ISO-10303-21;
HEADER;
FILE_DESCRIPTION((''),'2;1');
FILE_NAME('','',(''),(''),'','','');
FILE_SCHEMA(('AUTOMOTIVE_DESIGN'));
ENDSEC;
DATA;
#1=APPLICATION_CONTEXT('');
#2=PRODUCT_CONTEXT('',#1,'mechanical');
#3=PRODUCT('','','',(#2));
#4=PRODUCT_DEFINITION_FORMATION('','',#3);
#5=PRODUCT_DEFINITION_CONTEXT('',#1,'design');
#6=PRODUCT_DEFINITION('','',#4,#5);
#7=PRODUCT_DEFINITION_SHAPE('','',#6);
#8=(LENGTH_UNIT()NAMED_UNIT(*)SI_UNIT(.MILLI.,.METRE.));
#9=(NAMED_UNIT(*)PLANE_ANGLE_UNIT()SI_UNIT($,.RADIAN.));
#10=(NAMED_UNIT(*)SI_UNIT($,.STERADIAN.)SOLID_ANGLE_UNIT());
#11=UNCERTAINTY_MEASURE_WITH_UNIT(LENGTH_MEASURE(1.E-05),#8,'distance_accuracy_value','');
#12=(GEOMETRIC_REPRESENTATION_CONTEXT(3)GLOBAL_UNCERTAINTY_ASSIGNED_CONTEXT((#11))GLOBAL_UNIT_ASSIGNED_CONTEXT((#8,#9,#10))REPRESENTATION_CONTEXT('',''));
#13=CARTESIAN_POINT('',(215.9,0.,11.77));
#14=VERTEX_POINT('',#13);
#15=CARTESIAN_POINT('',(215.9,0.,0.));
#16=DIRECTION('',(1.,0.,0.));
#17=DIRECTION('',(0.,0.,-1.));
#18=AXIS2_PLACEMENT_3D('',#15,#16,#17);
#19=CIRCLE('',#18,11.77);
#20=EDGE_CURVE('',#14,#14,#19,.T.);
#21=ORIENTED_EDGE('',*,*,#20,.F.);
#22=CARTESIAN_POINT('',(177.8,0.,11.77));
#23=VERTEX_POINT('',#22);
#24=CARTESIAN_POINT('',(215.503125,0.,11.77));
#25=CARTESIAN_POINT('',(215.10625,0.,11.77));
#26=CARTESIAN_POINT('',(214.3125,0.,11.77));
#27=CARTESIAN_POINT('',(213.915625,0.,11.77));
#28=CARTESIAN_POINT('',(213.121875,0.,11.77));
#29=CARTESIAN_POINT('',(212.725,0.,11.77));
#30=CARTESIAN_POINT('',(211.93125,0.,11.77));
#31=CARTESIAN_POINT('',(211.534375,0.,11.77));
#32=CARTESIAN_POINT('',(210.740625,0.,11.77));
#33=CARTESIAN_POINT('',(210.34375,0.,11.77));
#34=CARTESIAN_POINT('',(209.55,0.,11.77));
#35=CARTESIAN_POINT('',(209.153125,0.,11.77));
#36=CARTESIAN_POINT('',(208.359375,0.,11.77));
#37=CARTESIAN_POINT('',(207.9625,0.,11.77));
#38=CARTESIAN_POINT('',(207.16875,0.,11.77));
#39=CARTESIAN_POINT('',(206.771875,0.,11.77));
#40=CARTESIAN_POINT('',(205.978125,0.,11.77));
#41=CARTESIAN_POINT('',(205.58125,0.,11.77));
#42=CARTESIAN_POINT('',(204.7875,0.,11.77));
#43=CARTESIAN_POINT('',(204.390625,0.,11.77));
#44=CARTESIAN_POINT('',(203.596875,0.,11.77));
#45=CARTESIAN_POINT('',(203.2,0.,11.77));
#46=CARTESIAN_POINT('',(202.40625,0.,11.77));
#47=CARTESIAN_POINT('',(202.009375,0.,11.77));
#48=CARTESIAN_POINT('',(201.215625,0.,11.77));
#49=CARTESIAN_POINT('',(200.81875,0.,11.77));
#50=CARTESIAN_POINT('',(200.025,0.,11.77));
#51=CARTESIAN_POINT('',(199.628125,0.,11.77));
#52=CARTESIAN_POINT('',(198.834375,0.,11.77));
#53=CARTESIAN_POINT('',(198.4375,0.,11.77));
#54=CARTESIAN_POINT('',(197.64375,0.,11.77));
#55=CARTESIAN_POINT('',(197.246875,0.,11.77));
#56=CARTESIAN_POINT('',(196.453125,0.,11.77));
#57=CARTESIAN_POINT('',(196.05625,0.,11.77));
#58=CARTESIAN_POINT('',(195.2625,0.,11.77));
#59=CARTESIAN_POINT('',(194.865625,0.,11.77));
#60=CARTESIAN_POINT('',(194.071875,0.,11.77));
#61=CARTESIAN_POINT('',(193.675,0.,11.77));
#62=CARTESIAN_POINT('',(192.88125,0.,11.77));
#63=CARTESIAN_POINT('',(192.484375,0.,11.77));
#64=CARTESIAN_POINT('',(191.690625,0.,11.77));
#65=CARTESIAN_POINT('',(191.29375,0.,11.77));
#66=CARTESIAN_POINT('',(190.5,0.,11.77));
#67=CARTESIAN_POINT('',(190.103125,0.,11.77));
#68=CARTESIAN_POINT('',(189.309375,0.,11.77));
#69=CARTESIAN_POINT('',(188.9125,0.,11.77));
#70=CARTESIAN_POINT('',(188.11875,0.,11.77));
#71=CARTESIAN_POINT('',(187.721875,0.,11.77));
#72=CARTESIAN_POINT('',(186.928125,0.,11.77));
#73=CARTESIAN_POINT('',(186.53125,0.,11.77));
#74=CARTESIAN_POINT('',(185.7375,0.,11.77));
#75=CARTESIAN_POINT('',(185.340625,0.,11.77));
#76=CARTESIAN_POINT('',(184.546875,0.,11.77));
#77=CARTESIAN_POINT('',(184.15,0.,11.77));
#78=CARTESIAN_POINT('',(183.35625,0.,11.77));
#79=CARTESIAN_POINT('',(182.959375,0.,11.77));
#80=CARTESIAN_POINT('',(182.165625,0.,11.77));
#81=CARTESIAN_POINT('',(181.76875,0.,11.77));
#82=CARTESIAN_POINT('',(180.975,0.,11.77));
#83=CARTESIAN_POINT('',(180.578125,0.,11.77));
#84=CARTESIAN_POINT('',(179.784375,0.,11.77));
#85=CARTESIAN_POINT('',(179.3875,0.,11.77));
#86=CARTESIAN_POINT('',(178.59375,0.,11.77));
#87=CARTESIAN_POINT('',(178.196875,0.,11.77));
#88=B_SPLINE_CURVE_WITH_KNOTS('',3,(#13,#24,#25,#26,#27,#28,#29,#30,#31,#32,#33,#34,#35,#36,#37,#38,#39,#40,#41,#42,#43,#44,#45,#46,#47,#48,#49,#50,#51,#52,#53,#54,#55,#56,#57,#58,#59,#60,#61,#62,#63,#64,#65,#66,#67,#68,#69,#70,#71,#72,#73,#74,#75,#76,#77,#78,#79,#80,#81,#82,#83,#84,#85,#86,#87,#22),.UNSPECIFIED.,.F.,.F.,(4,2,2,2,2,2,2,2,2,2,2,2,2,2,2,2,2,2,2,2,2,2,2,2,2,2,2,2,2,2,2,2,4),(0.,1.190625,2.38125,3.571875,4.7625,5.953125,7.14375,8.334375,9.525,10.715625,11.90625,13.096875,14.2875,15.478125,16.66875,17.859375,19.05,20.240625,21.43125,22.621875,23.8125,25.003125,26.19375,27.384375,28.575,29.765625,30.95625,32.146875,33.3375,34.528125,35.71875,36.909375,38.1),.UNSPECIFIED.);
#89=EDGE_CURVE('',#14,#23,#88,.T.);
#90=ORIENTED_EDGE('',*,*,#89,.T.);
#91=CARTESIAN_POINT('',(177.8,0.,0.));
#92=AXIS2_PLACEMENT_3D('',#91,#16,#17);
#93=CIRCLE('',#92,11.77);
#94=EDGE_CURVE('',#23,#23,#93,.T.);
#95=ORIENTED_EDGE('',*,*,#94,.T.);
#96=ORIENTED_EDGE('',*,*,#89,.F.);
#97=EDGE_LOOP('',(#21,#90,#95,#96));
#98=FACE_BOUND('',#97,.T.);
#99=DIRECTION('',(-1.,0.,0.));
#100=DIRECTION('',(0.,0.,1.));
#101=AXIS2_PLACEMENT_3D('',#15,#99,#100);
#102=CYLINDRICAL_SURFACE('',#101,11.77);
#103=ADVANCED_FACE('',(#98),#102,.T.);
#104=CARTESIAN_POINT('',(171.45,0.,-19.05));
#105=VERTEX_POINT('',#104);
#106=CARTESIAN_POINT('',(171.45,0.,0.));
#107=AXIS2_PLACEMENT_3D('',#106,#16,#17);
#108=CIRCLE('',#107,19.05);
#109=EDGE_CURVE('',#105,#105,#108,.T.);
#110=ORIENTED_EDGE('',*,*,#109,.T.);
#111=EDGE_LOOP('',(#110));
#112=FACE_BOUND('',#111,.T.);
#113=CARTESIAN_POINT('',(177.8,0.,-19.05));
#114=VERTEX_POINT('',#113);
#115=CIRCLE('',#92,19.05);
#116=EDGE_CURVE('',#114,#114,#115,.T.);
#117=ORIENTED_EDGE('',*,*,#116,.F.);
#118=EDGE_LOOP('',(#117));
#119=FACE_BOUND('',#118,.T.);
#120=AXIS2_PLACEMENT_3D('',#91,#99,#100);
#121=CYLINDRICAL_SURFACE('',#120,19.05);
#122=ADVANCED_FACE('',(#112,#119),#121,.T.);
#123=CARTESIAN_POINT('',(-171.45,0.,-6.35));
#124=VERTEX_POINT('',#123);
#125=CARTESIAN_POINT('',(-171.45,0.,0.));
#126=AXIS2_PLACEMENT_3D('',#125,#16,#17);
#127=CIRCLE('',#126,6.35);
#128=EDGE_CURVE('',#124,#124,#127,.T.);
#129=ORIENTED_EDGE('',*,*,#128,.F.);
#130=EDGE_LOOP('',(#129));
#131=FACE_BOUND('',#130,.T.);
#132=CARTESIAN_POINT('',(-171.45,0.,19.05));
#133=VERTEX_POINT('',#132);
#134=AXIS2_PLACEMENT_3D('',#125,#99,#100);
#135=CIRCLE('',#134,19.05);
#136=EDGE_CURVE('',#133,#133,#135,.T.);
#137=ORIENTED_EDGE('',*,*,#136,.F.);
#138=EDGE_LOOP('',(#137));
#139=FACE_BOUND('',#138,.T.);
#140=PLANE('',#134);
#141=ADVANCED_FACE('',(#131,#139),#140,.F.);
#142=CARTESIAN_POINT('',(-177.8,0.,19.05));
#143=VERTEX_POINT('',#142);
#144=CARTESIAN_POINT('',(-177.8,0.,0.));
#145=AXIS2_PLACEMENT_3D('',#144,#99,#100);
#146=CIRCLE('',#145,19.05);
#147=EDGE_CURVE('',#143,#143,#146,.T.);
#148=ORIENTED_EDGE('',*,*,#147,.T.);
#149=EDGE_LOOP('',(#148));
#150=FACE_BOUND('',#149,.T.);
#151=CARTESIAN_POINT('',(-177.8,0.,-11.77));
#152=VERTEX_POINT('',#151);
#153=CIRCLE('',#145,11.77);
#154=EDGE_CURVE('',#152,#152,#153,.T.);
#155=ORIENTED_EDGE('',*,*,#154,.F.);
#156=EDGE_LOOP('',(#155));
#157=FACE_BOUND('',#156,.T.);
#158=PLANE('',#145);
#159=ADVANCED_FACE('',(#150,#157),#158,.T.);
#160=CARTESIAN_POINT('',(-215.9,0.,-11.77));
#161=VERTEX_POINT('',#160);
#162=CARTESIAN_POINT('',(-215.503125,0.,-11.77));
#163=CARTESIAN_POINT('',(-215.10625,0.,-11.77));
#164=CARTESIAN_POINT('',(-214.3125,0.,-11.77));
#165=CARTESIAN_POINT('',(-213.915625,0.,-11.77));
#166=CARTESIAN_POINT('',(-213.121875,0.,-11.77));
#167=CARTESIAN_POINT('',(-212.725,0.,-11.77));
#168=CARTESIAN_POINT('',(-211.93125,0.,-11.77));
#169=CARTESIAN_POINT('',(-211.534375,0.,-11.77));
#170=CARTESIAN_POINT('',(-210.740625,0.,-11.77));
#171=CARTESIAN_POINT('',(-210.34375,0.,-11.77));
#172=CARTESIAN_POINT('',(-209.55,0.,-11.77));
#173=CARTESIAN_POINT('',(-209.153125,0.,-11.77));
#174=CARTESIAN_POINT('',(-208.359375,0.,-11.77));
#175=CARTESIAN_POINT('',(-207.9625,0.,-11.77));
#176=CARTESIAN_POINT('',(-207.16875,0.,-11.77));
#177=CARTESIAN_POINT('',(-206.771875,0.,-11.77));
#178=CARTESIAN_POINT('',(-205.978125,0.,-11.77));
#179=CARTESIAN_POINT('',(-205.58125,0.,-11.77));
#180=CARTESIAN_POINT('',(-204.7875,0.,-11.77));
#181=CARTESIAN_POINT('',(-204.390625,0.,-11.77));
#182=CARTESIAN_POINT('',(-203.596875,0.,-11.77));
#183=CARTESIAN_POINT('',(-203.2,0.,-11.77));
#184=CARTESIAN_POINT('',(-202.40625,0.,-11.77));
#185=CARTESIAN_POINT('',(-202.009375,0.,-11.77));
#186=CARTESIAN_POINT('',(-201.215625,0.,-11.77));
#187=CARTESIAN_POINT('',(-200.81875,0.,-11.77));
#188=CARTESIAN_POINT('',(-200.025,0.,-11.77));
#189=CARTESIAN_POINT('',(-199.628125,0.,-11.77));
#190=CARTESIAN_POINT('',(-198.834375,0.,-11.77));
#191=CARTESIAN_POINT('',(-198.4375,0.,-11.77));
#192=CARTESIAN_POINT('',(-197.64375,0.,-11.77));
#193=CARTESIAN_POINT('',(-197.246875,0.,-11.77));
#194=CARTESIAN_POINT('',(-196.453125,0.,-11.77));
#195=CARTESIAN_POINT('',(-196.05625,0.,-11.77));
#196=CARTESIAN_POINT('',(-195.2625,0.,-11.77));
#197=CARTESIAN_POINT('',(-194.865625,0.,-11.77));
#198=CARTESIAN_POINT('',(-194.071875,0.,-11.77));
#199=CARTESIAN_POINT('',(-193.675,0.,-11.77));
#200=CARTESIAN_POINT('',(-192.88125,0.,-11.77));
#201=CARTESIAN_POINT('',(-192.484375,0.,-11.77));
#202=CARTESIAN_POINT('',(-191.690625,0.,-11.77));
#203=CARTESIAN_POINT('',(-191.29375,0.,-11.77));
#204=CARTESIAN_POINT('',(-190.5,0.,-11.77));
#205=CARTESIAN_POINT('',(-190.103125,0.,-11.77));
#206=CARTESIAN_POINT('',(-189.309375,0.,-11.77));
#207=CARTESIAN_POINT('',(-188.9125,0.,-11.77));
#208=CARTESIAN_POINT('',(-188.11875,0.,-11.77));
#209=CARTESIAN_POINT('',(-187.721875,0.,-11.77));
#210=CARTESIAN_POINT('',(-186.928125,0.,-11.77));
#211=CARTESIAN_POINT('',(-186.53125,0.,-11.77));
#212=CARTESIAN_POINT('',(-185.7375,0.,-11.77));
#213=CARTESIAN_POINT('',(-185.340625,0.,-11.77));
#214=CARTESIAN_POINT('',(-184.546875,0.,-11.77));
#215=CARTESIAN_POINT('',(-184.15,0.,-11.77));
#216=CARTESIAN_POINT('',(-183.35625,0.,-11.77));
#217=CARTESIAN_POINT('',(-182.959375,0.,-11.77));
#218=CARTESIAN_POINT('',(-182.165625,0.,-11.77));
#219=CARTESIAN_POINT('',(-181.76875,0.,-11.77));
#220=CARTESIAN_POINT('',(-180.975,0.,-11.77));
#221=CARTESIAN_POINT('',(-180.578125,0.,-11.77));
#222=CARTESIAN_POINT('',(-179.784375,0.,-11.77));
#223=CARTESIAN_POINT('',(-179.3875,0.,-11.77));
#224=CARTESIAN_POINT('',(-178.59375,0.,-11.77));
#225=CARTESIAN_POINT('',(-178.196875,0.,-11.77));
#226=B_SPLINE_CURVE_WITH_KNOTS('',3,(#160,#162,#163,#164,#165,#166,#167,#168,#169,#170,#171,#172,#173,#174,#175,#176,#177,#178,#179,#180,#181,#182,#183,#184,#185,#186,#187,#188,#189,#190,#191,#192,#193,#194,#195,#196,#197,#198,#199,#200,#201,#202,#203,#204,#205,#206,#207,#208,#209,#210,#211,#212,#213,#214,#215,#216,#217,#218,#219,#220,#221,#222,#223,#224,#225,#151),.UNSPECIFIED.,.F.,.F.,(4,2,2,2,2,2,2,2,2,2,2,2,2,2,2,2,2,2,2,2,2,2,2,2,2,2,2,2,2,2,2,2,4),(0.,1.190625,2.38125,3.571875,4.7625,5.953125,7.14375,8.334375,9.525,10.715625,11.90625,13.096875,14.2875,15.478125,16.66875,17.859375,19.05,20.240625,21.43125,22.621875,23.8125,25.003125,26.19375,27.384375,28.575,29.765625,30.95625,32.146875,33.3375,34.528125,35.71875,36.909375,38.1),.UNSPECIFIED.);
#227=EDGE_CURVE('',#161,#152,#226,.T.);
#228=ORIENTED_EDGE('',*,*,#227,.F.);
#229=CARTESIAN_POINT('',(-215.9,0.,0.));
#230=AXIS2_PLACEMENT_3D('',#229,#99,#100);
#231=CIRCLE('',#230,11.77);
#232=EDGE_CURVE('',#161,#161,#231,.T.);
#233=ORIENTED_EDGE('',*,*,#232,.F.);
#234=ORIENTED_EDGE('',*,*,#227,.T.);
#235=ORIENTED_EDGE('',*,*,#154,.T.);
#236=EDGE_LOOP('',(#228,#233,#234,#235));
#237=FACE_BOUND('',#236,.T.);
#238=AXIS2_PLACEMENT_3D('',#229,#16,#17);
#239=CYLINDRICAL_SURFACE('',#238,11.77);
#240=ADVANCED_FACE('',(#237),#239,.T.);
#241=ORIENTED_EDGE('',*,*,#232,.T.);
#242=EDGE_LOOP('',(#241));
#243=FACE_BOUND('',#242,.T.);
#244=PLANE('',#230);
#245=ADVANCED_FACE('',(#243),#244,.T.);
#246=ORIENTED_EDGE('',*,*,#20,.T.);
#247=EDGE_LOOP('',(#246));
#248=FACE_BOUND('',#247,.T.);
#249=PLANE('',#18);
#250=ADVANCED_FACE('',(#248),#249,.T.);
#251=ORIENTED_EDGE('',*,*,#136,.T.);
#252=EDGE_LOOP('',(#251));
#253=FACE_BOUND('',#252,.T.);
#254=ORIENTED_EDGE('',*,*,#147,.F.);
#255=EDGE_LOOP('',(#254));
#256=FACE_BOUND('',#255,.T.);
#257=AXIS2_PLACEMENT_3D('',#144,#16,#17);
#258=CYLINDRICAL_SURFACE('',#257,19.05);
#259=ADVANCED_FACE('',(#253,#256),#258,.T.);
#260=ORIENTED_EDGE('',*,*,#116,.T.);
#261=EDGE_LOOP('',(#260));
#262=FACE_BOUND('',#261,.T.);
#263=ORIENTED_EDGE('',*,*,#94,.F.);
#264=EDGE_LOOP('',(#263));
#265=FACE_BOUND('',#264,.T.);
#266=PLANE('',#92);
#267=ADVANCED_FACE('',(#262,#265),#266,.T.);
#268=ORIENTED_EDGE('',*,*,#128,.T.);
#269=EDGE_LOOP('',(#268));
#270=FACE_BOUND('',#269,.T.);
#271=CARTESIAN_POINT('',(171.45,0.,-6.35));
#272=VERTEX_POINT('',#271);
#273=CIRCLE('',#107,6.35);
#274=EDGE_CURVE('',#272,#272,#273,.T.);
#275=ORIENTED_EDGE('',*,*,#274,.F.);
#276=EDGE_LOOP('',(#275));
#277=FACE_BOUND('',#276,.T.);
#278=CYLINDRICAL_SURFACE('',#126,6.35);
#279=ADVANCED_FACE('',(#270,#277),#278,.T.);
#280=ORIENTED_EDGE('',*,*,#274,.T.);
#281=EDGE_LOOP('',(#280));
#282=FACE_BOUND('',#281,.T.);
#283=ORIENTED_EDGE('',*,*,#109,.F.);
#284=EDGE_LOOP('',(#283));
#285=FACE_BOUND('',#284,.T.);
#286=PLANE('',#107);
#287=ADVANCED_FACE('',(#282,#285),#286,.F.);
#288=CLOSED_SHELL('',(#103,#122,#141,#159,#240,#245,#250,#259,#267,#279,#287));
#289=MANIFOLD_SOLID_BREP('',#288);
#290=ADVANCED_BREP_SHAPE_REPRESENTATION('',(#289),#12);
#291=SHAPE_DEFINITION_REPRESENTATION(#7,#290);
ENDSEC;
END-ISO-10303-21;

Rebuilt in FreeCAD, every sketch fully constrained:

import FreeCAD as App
import Part
import Sketcher

V = App.Vector
Q = App.Units.Quantity

doc = App.newDocument("Part")
body = doc.addObject("PartDesign::Body", "Body")

# Sketch on YZ plane
sketch1 = body.newObject("Sketcher::SketchObject", "Sketch")
sketch1.AttachmentSupport = (doc.getObject("YZ_Plane"), [""])
sketch1.MapMode = "FlatFace"
sketch1.addGeometry(Part.Circle(V(0, 0, 0), V(0, 0, 1), 6), False)
sketch1.addConstraint([
    Sketcher.Constraint("Coincident", 0, 3, -1, 1),
    Sketcher.Constraint("Diameter", 0, Q("0.5 in")),
])
pad1 = body.newObject("PartDesign::Pad", "Pad")
pad1.Profile = sketch1
pad1.Type = "TwoLengths"
pad1.Length = Q("6.75 in")
pad1.Length2 = Q("6.75 in")

# Sketch on YZ plane
sketch2 = body.newObject("Sketcher::SketchObject", "Sketch001")
sketch2.AttachmentSupport = (doc.getObject("YZ_Plane"), [""])
sketch2.MapMode = "FlatFace"
sketch2.AttachmentOffset = App.Placement(V(0, 0, 6.75 * 25.4), App.Rotation())
sketch2.addGeometry(Part.Circle(V(0, 0, 0), V(0, 0, 1), 19), False)
sketch2.addConstraint([
    Sketcher.Constraint("Coincident", 0, 3, -1, 1),
    Sketcher.Constraint("Diameter", 0, Q("1.5 in")),
])
pad2 = body.newObject("PartDesign::Pad", "Pad001")
pad2.Profile = sketch2
pad2.Length = Q("0.25 in")

# Sketch on YZ plane
sketch3 = body.newObject("Sketcher::SketchObject", "Sketch002")
sketch3.AttachmentSupport = (doc.getObject("YZ_Plane"), [""])
sketch3.MapMode = "FlatFace"
sketch3.AttachmentOffset = App.Placement(V(0, 0, -7 * 25.4), App.Rotation())
sketch3.addGeometry(Part.Circle(V(0, 0, 0), V(0, 0, 1), 19), False)
sketch3.addConstraint([
    Sketcher.Constraint("Coincident", 0, 3, -1, 1),
    Sketcher.Constraint("Diameter", 0, Q("1.5 in")),
])
pad3 = body.newObject("PartDesign::Pad", "Pad002")
pad3.Profile = sketch3
pad3.Length = Q("0.25 in")

# Sketch on YZ plane
sketch4 = body.newObject("Sketcher::SketchObject", "Sketch003")
sketch4.AttachmentSupport = (doc.getObject("YZ_Plane"), [""])
sketch4.MapMode = "FlatFace"
sketch4.AttachmentOffset = App.Placement(V(0, 0, -7 * 25.4), App.Rotation())
sketch4.addGeometry(Part.Circle(V(0, 0, 0), V(0, 0, 1), 12), False)
sketch4.addConstraint([
    Sketcher.Constraint("Coincident", 0, 3, -1, 1),
    Sketcher.Constraint("Diameter", 0, Q("23.54 mm")),
])
pad4 = body.newObject("PartDesign::Pad", "Pad003")
pad4.Profile = sketch4
pad4.Length = Q("1.5 in")
pad4.Reversed = True

# Sketch on YZ plane
sketch5 = body.newObject("Sketcher::SketchObject", "Sketch004")
sketch5.AttachmentSupport = (doc.getObject("YZ_Plane"), [""])
sketch5.MapMode = "FlatFace"
sketch5.AttachmentOffset = App.Placement(V(0, 0, 8.5 * 25.4), App.Rotation())
sketch5.addGeometry(Part.Circle(V(0, 0, 0), V(0, 0, 1), 12), False)
sketch5.addConstraint([
    Sketcher.Constraint("Coincident", 0, 3, -1, 1),
    Sketcher.Constraint("Diameter", 0, Q("23.54 mm")),
])
pad5 = body.newObject("PartDesign::Pad", "Pad004")
pad5.Profile = sketch5
pad5.Length = Q("1.5 in")
pad5.Reversed = True

doc.recompute()
